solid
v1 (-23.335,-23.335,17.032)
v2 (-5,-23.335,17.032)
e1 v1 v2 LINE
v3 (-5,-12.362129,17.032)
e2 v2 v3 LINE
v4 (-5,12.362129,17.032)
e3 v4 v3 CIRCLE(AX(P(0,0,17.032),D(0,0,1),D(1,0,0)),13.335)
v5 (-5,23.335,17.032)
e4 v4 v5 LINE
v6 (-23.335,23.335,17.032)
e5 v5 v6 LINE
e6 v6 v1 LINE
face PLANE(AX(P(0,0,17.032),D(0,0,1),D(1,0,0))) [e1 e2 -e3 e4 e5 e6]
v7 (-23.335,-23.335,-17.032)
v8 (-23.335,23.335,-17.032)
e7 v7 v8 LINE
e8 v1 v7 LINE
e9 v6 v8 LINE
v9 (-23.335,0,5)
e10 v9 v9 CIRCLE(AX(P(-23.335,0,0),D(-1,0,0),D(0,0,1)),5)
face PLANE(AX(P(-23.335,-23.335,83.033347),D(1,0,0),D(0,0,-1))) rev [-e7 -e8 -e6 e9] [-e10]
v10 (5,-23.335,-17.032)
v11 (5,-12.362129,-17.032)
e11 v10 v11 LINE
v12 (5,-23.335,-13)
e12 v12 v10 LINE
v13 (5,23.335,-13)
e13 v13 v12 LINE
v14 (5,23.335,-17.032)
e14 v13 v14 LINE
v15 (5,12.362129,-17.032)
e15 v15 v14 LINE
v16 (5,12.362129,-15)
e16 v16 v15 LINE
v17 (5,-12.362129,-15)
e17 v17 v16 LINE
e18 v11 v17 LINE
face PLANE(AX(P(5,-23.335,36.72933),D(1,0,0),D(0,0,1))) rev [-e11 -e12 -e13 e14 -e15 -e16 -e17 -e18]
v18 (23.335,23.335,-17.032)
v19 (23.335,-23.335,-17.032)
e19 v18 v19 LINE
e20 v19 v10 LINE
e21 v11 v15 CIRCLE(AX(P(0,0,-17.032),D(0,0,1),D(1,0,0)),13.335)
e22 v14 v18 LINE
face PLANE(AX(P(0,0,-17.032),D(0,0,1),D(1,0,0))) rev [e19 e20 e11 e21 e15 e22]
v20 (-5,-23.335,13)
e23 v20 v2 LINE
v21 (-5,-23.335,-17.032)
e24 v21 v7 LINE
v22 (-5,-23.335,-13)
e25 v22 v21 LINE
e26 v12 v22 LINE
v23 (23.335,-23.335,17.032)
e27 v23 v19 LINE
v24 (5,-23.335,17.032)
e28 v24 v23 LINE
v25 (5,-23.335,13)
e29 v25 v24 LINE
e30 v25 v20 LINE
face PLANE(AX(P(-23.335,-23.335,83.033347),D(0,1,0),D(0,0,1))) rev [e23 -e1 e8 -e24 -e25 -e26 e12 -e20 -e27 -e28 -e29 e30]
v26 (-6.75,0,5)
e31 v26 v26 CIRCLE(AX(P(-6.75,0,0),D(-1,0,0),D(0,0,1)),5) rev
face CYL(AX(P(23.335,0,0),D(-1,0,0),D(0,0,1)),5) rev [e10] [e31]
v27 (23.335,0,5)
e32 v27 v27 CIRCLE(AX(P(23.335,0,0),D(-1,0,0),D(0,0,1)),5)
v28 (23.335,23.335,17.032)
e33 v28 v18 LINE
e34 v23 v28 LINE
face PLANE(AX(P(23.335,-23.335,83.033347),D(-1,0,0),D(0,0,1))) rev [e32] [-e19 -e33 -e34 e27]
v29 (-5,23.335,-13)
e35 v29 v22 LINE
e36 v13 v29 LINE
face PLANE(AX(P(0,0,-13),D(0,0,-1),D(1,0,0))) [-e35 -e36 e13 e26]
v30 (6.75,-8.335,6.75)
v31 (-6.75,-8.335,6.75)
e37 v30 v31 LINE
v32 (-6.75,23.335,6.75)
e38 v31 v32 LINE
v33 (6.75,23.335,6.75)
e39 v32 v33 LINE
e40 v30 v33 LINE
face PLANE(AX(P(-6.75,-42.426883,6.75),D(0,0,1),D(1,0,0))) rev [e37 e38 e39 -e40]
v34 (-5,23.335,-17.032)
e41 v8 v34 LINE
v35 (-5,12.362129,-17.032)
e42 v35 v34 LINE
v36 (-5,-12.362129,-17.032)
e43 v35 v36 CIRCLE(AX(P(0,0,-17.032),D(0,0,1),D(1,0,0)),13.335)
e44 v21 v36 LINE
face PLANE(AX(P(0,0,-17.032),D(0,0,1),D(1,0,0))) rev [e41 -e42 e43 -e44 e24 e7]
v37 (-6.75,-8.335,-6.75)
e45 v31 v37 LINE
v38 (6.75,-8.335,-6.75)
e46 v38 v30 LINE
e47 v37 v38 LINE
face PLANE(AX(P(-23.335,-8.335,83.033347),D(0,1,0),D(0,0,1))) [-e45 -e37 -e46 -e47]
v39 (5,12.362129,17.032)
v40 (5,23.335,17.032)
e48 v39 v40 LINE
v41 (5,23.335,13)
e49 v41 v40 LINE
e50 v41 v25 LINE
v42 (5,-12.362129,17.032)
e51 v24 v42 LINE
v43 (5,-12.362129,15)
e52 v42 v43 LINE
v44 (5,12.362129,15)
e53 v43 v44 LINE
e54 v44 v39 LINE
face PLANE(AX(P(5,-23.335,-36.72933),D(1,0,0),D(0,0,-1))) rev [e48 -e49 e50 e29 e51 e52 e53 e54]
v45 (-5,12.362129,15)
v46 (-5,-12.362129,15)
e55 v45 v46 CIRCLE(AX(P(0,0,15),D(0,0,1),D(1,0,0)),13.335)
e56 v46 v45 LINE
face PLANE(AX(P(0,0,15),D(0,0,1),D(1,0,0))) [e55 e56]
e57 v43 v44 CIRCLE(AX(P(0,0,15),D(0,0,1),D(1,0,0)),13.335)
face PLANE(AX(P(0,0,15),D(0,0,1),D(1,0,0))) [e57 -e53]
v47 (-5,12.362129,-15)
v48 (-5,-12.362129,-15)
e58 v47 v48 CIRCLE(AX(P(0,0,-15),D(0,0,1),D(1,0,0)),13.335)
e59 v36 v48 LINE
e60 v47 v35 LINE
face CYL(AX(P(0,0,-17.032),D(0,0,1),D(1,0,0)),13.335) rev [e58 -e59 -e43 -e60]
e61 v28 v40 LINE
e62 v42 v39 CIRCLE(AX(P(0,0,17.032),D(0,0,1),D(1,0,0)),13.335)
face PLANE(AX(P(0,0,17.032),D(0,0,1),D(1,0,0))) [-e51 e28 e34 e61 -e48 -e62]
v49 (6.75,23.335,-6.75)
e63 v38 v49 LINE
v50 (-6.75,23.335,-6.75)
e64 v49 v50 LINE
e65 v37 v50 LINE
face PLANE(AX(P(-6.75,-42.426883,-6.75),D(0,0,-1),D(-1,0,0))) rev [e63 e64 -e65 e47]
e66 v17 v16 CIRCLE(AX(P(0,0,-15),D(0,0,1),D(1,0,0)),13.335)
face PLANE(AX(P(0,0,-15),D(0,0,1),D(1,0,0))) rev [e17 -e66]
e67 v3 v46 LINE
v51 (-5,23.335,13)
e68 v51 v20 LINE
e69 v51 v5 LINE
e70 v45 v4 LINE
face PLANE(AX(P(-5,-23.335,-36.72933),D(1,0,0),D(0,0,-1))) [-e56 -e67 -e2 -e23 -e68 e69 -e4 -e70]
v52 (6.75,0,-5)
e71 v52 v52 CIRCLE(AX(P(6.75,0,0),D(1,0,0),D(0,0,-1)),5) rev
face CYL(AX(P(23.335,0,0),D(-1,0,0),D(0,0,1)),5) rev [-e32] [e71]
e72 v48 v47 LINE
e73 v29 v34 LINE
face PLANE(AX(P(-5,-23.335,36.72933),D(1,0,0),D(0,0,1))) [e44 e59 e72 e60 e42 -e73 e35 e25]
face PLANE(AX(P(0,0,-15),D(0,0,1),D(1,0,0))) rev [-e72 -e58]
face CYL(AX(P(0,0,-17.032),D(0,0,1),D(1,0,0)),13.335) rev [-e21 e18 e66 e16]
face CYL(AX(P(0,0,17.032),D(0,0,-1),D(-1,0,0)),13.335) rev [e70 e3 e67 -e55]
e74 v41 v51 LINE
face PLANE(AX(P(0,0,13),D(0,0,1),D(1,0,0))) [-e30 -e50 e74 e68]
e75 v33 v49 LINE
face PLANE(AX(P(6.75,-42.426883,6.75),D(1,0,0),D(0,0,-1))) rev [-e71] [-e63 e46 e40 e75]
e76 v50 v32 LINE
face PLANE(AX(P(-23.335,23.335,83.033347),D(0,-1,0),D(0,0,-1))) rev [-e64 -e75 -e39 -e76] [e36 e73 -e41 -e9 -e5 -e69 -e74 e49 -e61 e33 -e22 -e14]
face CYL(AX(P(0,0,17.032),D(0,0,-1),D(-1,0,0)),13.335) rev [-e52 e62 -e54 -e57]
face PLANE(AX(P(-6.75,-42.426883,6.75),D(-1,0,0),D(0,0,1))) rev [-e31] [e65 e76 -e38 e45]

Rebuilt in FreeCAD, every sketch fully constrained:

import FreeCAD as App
import Part
import Sketcher
Q = App.Units.Quantity

doc = App.newDocument("Part")
body = doc.addObject("PartDesign::Body", "Body")

# Sketch on XY plane
sketch1 = doc.addObject("Sketcher::SketchObject", "Sketch")
body.addObject(sketch1)
sketch1.AttachmentSupport = (doc.XY_Plane, [""])
sketch1.MapMode = "FlatFace"
sketch1.AttachmentOffset = App.Placement(App.Vector(0, 0, 15), App.Rotation())
sketch1.addGeometry(Part.Circle(App.Vector(0, 0, 0), App.Vector(0, 0, 1), 13.335), False)
sketch1.addConstraint(Sketcher.Constraint("Coincident", 0, 3, -1, 1))
sketch1.addConstraint(Sketcher.Constraint("Diameter", 0, Q("26.67 mm")))
pad1 = doc.addObject("PartDesign::Pad", "Pad")
body.addObject(pad1)
pad1.Profile = sketch1
pad1.Length = 2.032
body2 = doc.addObject("PartDesign::Body", "Body001")

# Sketch on XY plane
sketch2 = doc.addObject("Sketcher::SketchObject", "Sketch001")
body2.addObject(sketch2)
sketch2.AttachmentSupport = (doc.getObject("XY_Plane001"), [""])
sketch2.MapMode = "FlatFace"
sketch2.AttachmentOffset = App.Placement(App.Vector(0, 0, -15), App.Rotation())
sketch2.addGeometry(Part.Circle(App.Vector(0, 0, 0), App.Vector(0, 0, 1), 13.335), False)
sketch2.addConstraint(Sketcher.Constraint("Coincident", 0, 3, -1, 1))
sketch2.addConstraint(Sketcher.Constraint("Diameter", 0, Q("26.67 mm")))
pad2 = doc.addObject("PartDesign::Pad", "Pad001")
body2.addObject(pad2)
pad2.Profile = sketch2
pad2.Length = 2.032
pad2.Reversed = True
body3 = doc.addObject("PartDesign::Body", "Body002")

# Sketch on XY plane
sketch3 = doc.addObject("Sketcher::SketchObject", "Sketch002")
body3.addObject(sketch3)
sketch3.AttachmentSupport = (doc.getObject("XY_Plane002"), [""])
sketch3.MapMode = "FlatFace"
sketch3.AttachmentOffset = App.Placement(App.Vector(0, 0, -17.032), App.Rotation())
sketch3.addGeometry(Part.LineSegment(App.Vector(-23.335, 23.335, 0), App.Vector(-23.335, -23.335, 0)), False)
sketch3.addGeometry(Part.LineSegment(App.Vector(-23.335, -23.335, 0), App.Vector(23.335, -23.335, 0)), False)
sketch3.addGeometry(Part.LineSegment(App.Vector(23.335, -23.335, 0), App.Vector(23.335, 23.335, 0)), False)
sketch3.addGeometry(Part.LineSegment(App.Vector(23.335, 23.335, 0), App.Vector(-23.335, 23.335, 0)), False)
sketch3.addConstraint(Sketcher.Constraint("Coincident", 0, 2, 1, 1))
sketch3.addConstraint(Sketcher.Constraint("Coincident", 1, 2, 2, 1))
sketch3.addConstraint(Sketcher.Constraint("Coincident", 2, 2, 3, 1))
sketch3.addConstraint(Sketcher.Constraint("Coincident", 3, 2, 0, 1))
sketch3.addConstraint(Sketcher.Constraint("Vertical", 0))
sketch3.addConstraint(Sketcher.Constraint("Horizontal", 1))
sketch3.addConstraint(Sketcher.Constraint("Vertical", 2))
sketch3.addConstraint(Sketcher.Constraint("Horizontal", 3))
sketch3.addConstraint(Sketcher.Constraint("Symmetric", 0, 2, 2, 2, -1, 1))
sketch3.addConstraint(Sketcher.Constraint("Equal", 3, 0))
sketch3.addConstraint(Sketcher.Constraint("DistanceX", 1, 1, 1, 2, Q("46.67 mm")))
pad3 = doc.addObject("PartDesign::Pad", "Pad002")
body3.addObject(pad3)
pad3.Profile = sketch3
pad3.Length = 34.064

# Sketch on YZ plane
sketch4 = doc.addObject("Sketcher::SketchObject", "Sketch003")
body3.addObject(sketch4)
sketch4.AttachmentSupport = (doc.getObject("YZ_Plane002"), [""])
sketch4.MapMode = "FlatFace"
sketch4.AttachmentOffset = App.Placement(App.Vector(0, 0, -23.335), App.Rotation())
sketch4.addGeometry(Part.Circle(App.Vector(0, 0, 0), App.Vector(0, 0, 1), 5), False)
sketch4.addConstraint(Sketcher.Constraint("Coincident", 0, 3, -1, 1))
sketch4.addConstraint(Sketcher.Constraint("Diameter", 0, Q("10 mm")))
pocket1 = doc.addObject("PartDesign::Pocket", "Pocket")
body3.addObject(pocket1)
pocket1.Profile = sketch4
pocket1.Type = "ThroughAll"
pocket1.Reversed = True

# Sketch on XZ plane
sketch5 = doc.addObject("Sketcher::SketchObject", "Sketch004")
body3.addObject(sketch5)
sketch5.AttachmentSupport = (doc.getObject("XZ_Plane002"), [""])
sketch5.MapMode = "FlatFace"
sketch5.AttachmentOffset = App.Placement(App.Vector(0, 0, -23.335), App.Rotation())
sketch5.addGeometry(Part.LineSegment(App.Vector(-6.75, -6.75, 0), App.Vector(-6.75, 6.75, 0)), False)
sketch5.addGeometry(Part.LineSegment(App.Vector(-6.75, 6.75, 0), App.Vector(6.75, 6.75, 0)), False)
sketch5.addGeometry(Part.LineSegment(App.Vector(6.75, 6.75, 0), App.Vector(6.75, -6.75, 0)), False)
sketch5.addGeometry(Part.LineSegment(App.Vector(6.75, -6.75, 0), App.Vector(-6.75, -6.75, 0)), False)
sketch5.addConstraint(Sketcher.Constraint("Coincident", 0, 2, 1, 1))
sketch5.addConstraint(Sketcher.Constraint("Coincident", 1, 2, 2, 1))
sketch5.addConstraint(Sketcher.Constraint("Coincident", 2, 2, 3, 1))
sketch5.addConstraint(Sketcher.Constraint("Coincident", 3, 2, 0, 1))
sketch5.addConstraint(Sketcher.Constraint("Vertical", 0))
sketch5.addConstraint(Sketcher.Constraint("Horizontal", 1))
sketch5.addConstraint(Sketcher.Constraint("Vertical", 2))
sketch5.addConstraint(Sketcher.Constraint("Horizontal", 3))
sketch5.addConstraint(Sketcher.Constraint("Symmetric", 0, 2, 2, 2, -1, 1))
sketch5.addConstraint(Sketcher.Constraint("Equal", 3, 0))
sketch5.addConstraint(Sketcher.Constraint("DistanceX", 1, 1, 1, 2, Q("13.5 mm")))
pocket2 = doc.addObject("PartDesign::Pocket", "Pocket001")
body3.addObject(pocket2)
pocket2.Profile = sketch5
pocket2.Length = 31.67
pocket2.Reversed = True
doc.recompute()

boolean = doc.addObject("PartDesign::Boolean", "Boolean")
body3.addObject(boolean)
boolean.Type = "Cut"
boolean.addObjects([body])
doc.recompute()

boolean2 = doc.addObject("PartDesign::Boolean", "Boolean001")
body3.addObject(boolean2)
boolean2.Type = "Cut"
boolean2.addObjects([body2])

# Sketch on XY plane
sketch6 = doc.addObject("Sketcher::SketchObject", "Sketch005")
body3.addObject(sketch6)
sketch6.AttachmentSupport = (doc.getObject("XY_Plane002"), [""])
sketch6.MapMode = "FlatFace"
sketch6.AttachmentOffset = App.Placement(App.Vector(0, 0, 17.032), App.Rotation())
sketch6.addGeometry(Part.LineSegment(App.Vector(-5, 23.335, 0), App.Vector(-5, -23.335, 0)), False)
sketch6.addGeometry(Part.LineSegment(App.Vector(-5, -23.335, 0), App.Vector(5, -23.335, 0)), False)
sketch6.addGeometry(Part.LineSegment(App.Vector(5, -23.335, 0), App.Vector(5, 23.335, 0)), False)
sketch6.addGeometry(Part.LineSegment(App.Vector(5, 23.335, 0), App.Vector(-5, 23.335, 0)), False)
sketch6.addConstraint(Sketcher.Constraint("Coincident", 0, 2, 1, 1))
sketch6.addConstraint(Sketcher.Constraint("Coincident", 1, 2, 2, 1))
sketch6.addConstraint(Sketcher.Constraint("Coincident", 2, 2, 3, 1))
sketch6.addConstraint(Sketcher.Constraint("Coincident", 3, 2, 0, 1))
sketch6.addConstraint(Sketcher.Constraint("Vertical", 0))
sketch6.addConstraint(Sketcher.Constraint("Horizontal", 1))
sketch6.addConstraint(Sketcher.Constraint("Vertical", 2))
sketch6.addConstraint(Sketcher.Constraint("Horizontal", 3))
sketch6.addConstraint(Sketcher.Constraint("Symmetric", 0, 2, 2, 2, -1, 1))
sketch6.addConstraint(Sketcher.Constraint("DistanceX", 1, 1, 1, 2, Q("10 mm")))
sketch6.addConstraint(Sketcher.Constraint("DistanceY", 0, 2, 0, 1, Q("46.67 mm")))
pocket3 = doc.addObject("PartDesign::Pocket", "Pocket002")
body3.addObject(pocket3)
pocket3.Profile = sketch6
pocket3.Length = 4.032
doc.recompute()

mirrored = doc.addObject("PartDesign::Mirrored", "Mirrored")
body3.addObject(mirrored)
mirrored.Originals = [pocket3]
mirrored.MirrorPlane = (doc.getObject("XY_Plane002"), [""])
body3.Tip = mirrored

doc.recompute()
